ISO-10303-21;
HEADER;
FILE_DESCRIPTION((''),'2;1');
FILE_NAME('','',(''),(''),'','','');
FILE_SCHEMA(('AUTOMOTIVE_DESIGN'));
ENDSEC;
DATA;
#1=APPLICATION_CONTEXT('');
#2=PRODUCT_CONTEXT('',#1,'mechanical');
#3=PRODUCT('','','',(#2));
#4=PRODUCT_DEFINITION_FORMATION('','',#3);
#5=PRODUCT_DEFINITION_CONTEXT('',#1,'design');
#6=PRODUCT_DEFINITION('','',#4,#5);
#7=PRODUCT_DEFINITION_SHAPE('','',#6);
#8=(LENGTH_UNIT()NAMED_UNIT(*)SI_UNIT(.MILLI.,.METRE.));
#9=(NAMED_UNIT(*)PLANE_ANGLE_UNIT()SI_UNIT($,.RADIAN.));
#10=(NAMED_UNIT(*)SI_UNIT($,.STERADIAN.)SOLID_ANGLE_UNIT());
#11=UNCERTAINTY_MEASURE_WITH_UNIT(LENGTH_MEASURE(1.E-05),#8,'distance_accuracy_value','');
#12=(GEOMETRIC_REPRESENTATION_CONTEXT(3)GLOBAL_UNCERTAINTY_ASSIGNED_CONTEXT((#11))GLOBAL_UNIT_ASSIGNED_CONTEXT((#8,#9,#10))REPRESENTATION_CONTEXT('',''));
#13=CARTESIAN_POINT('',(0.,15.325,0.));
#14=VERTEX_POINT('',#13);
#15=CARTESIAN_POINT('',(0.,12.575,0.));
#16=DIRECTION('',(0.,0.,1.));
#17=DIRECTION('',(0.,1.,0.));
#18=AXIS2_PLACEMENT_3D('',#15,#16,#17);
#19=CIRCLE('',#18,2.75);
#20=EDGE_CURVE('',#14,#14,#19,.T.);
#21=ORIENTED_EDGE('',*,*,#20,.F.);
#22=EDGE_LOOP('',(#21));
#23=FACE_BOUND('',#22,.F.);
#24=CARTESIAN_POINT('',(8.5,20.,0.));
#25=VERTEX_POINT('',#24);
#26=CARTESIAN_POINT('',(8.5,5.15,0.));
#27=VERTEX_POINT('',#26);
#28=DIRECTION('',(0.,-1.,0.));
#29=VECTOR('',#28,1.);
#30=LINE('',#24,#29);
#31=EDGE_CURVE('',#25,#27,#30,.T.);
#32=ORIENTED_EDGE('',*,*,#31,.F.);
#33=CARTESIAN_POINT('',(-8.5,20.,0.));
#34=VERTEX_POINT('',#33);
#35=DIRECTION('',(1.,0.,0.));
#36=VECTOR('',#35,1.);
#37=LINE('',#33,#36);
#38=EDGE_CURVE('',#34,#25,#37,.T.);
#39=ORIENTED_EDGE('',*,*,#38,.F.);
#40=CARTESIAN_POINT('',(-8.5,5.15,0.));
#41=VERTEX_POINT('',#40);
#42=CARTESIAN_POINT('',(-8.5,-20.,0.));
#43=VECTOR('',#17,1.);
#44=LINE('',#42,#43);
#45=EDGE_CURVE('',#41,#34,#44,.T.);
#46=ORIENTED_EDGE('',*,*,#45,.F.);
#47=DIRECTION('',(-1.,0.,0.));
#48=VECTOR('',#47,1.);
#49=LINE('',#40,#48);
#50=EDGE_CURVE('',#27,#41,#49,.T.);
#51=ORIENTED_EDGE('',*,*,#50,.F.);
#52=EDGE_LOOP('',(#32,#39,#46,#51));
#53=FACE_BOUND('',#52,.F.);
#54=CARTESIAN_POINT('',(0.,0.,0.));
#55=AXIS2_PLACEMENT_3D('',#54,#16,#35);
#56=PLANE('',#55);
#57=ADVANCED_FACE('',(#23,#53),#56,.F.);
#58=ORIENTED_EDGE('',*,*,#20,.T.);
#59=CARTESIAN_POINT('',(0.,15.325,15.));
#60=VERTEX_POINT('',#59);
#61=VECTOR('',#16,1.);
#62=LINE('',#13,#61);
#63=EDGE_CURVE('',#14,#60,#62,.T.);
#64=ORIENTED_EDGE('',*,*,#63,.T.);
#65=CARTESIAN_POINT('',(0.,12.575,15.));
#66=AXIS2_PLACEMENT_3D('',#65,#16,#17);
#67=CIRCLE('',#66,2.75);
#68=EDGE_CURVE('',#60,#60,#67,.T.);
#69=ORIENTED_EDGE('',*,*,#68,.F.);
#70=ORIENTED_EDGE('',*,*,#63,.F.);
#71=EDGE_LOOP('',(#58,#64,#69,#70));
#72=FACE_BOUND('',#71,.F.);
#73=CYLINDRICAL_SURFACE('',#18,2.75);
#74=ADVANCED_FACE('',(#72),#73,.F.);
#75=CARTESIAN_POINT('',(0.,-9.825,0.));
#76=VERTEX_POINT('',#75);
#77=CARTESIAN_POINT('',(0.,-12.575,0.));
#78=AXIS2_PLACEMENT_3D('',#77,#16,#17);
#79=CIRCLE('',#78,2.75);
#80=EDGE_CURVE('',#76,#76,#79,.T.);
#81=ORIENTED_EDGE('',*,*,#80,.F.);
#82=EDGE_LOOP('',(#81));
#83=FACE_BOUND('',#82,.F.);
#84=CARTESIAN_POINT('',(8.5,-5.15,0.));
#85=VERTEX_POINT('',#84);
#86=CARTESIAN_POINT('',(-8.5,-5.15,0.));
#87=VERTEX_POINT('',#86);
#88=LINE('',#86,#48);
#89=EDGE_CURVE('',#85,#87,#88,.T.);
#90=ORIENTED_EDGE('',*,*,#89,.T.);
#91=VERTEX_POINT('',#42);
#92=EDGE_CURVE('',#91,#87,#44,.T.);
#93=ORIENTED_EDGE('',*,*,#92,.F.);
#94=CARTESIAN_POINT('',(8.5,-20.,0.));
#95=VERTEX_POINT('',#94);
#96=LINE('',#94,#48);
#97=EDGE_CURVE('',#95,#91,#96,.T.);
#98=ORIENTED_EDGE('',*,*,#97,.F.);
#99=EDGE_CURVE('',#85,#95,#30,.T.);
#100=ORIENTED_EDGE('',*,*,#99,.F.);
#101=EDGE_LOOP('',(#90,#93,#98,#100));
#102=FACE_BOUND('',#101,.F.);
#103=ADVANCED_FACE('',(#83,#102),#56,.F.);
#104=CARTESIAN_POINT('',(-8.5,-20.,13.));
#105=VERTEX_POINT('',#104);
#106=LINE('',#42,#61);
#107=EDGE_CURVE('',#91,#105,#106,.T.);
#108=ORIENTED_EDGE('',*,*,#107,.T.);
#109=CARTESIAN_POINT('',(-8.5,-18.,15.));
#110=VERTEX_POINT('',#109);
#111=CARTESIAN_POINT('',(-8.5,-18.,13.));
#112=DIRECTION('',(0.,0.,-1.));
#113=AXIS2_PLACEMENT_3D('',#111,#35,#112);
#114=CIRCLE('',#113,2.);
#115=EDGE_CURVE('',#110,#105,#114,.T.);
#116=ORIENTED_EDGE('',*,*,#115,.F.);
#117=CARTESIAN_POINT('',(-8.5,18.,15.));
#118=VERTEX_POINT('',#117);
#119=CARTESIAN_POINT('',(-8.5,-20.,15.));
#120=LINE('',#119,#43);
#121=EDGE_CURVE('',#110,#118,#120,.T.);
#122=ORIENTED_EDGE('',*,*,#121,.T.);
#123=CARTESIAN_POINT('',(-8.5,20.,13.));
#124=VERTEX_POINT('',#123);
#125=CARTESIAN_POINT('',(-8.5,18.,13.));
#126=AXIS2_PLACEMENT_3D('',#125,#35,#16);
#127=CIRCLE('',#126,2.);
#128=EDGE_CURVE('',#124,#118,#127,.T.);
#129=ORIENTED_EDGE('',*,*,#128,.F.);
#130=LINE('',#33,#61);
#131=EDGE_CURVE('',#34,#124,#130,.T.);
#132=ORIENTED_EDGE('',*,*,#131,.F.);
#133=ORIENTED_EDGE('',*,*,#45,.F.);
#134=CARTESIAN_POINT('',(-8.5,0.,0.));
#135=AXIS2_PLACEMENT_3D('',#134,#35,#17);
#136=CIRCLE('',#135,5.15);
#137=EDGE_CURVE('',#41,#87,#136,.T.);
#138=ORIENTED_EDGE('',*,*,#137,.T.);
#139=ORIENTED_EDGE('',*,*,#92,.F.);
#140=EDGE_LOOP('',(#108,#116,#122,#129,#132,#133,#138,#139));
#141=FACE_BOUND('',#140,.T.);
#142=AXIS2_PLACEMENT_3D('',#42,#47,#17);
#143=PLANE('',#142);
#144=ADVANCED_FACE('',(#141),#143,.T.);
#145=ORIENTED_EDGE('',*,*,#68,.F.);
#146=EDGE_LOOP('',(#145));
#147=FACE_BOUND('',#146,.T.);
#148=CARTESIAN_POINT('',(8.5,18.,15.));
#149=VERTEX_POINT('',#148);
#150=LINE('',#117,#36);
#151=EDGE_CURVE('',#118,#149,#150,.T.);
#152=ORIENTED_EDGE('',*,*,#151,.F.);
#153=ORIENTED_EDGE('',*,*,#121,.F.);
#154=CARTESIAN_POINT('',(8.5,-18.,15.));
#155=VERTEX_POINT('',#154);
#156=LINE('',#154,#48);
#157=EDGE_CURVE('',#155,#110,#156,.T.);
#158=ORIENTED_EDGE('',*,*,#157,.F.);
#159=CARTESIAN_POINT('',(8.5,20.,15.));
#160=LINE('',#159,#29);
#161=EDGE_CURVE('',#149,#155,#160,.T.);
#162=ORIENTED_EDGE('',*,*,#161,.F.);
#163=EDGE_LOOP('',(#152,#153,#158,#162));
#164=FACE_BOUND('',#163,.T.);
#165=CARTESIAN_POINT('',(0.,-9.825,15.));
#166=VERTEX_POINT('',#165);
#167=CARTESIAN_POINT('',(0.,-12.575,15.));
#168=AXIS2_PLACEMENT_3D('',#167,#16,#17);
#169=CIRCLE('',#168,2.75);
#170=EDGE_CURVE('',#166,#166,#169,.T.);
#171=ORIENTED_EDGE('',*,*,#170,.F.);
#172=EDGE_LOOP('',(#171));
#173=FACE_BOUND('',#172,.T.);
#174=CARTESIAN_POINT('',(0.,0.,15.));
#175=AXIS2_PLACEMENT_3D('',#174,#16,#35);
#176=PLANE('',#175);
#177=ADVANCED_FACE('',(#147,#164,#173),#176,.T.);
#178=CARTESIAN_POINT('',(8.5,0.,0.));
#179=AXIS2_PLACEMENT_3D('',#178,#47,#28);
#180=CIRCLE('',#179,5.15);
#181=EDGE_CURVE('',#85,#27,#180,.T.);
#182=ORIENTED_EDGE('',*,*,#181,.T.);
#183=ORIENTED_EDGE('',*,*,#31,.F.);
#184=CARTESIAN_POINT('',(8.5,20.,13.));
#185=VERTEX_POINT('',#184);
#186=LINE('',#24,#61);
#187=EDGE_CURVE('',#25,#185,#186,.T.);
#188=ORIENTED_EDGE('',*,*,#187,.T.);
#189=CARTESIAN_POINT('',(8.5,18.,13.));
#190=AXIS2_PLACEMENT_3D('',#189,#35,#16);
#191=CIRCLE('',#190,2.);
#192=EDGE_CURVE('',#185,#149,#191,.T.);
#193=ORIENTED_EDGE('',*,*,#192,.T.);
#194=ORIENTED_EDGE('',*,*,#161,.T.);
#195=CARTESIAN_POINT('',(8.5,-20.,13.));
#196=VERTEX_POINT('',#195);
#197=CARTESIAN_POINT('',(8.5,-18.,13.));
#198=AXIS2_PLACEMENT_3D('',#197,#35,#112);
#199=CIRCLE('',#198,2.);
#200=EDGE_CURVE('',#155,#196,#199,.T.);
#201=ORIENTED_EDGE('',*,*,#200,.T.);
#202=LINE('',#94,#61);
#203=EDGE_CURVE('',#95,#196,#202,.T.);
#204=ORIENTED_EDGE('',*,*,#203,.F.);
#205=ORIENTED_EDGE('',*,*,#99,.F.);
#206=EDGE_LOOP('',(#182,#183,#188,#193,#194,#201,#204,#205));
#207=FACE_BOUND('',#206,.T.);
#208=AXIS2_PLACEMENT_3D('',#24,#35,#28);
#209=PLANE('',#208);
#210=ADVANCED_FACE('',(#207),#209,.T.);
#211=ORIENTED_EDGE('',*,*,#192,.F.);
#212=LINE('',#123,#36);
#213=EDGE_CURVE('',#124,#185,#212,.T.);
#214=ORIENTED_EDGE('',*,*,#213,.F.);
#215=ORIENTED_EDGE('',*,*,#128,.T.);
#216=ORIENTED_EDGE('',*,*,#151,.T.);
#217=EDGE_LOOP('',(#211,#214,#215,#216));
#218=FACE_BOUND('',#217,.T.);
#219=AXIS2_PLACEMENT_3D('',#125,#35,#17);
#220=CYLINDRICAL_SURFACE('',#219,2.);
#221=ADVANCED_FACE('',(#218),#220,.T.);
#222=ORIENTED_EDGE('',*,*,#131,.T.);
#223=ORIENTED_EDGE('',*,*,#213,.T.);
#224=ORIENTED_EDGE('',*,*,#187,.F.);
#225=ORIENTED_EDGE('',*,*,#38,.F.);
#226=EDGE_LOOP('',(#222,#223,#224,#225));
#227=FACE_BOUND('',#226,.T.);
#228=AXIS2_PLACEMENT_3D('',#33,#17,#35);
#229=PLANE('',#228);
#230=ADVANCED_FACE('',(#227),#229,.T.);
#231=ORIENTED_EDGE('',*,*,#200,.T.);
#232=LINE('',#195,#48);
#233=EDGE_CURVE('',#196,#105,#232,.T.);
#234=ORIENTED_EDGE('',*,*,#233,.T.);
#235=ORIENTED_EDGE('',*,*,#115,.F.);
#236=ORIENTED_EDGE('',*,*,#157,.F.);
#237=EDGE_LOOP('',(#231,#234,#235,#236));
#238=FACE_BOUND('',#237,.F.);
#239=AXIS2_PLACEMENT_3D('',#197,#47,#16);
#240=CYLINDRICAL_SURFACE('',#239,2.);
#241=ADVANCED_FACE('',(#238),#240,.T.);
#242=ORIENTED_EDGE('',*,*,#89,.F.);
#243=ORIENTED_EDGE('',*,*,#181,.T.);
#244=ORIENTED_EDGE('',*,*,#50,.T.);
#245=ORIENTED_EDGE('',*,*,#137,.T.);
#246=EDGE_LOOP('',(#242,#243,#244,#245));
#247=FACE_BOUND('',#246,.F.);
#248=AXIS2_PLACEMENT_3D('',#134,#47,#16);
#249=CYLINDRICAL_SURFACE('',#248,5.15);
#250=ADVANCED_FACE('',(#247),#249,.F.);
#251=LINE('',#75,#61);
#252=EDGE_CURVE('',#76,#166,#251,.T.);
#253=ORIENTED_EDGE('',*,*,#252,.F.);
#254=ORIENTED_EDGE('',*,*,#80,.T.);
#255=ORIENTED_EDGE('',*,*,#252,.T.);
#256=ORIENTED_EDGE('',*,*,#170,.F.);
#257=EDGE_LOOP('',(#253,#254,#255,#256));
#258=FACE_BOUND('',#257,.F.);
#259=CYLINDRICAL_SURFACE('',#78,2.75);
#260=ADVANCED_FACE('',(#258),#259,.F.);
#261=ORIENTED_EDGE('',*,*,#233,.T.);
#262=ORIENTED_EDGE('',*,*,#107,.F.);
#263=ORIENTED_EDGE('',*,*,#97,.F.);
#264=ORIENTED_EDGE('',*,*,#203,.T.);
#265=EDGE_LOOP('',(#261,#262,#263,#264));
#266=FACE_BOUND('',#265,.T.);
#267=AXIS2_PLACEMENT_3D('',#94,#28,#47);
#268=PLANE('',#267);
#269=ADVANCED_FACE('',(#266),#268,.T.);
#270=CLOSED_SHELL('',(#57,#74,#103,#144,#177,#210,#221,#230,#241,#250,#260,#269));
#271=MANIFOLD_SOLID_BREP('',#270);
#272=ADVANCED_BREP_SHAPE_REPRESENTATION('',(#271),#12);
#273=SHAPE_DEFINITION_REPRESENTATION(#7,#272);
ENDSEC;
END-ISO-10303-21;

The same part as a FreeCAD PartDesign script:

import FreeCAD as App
import Part
import Sketcher
from FreeCAD import Vector


def edges_at(feature, points):
    """Names of the edges that pass closest to the given points."""
    edges = feature.Shape.Edges
    near = lambda p: min(range(len(edges)), key=lambda i: edges[i].distToShape(Part.Vertex(*p))[0])
    return sorted({f"Edge{near(p) + 1}" for p in points})


def add_polygon(sketch, points):
    """Adds a closed chain of lines whose ends are joined by coincident constraints."""
    first, n = sketch.GeometryCount, len(points)
    for a, b in zip(points, points[1:] + points[:1]):
        sketch.addGeometry(Part.LineSegment(App.Vector(*a, 0), App.Vector(*b, 0)), False)
    for i in range(n):
        sketch.addConstraint(Sketcher.Constraint("Coincident", first + i, 2, first + (i + 1) % n, 1))

doc = App.newDocument("Part")
body = doc.addObject("PartDesign::Body", "Body")

# Sketch on XY plane
sketch1 = body.newObject("Sketcher::SketchObject", "Sketch")
sketch1.AttachmentSupport = (doc.getObject("XY_Plane"), [""])
sketch1.MapMode = "FlatFace"
add_polygon(sketch1, [(8.5, 20), (-8.5, 20), (-8.5, -20), (8.5, -20)])  # lines 0-3
sketch1.addConstraint(Sketcher.Constraint("Horizontal", 0))
sketch1.addConstraint(Sketcher.Constraint("Vertical", 1))
sketch1.addConstraint(Sketcher.Constraint("Horizontal", 2))
sketch1.addConstraint(Sketcher.Constraint("Vertical", 3))
sketch1.addConstraint(Sketcher.Constraint("Symmetric", 0, 2, 2, 2, -1, 1))
sketch1.addConstraint(Sketcher.Constraint("DistanceX", 0, 2, 0, 1, 17.0))
sketch1.addConstraint(Sketcher.Constraint("DistanceY", 1, 2, 1, 1, 40.0))
pad1 = body.newObject("PartDesign::Pad", "Pad")
pad1.Profile = sketch1
pad1.Length = 15

# Sketch on YZ plane
sketch2 = body.newObject("Sketcher::SketchObject", "Sketch001")
sketch2.AttachmentSupport = (doc.getObject("YZ_Plane"), [""])
sketch2.MapMode = "FlatFace"
sketch2.AttachmentOffset = App.Placement(Vector(0, 0, -8.5), App.Rotation())
sketch2.addGeometry(Part.Circle(Vector(0, 0, 0), Vector(0, 0, 1), 5.15), False)
sketch2.addConstraint(Sketcher.Constraint("Coincident", 0, 3, -1, 1))
sketch2.addConstraint(Sketcher.Constraint("Diameter", 0, 10.3))
pocket1 = body.newObject("PartDesign::Pocket", "Pocket")
pocket1.Profile = sketch2
pocket1.Type = "ThroughAll"
pocket1.Reversed = True

# Sketch on XY plane
sketch3 = body.newObject("Sketcher::SketchObject", "Sketch002")
sketch3.AttachmentSupport = (doc.getObject("XY_Plane"), [""])
sketch3.MapMode = "FlatFace"
sketch3.addGeometry(Part.Circle(Vector(0, -12.575, 0), Vector(0, 0, 1), 2.75), False)
sketch3.addGeometry(Part.Circle(Vector(0, 12.575, 0), Vector(0, 0, 1), 2.75), False)
sketch3.addConstraint(Sketcher.Constraint("Equal", 0, 1))
sketch3.addConstraint(Sketcher.Constraint("Symmetric", 0, 3, 1, 3, -1, 1))
sketch3.addConstraint(Sketcher.Constraint("PointOnObject", 0, 3, -2))
sketch3.addConstraint(Sketcher.Constraint("Diameter", 0, 5.5))
sketch3.addConstraint(Sketcher.Constraint("DistanceY", 0, 3, 1, 3, 25.15))
doc.recompute()
hole = body.newObject("PartDesign::Hole", "Hole")
hole.Profile = sketch3
hole.ThreadType = "None"
hole.Diameter = 5.5
hole.DepthType = "ThroughAll"
hole.Reversed = True
doc.recompute()

fillet = body.newObject("PartDesign::Fillet", "Fillet")
fillet.Base = (hole, edges_at(hole, [(0, -20, 15), (0, 20, 15)]))
fillet.Radius = 2

doc.recompute()
